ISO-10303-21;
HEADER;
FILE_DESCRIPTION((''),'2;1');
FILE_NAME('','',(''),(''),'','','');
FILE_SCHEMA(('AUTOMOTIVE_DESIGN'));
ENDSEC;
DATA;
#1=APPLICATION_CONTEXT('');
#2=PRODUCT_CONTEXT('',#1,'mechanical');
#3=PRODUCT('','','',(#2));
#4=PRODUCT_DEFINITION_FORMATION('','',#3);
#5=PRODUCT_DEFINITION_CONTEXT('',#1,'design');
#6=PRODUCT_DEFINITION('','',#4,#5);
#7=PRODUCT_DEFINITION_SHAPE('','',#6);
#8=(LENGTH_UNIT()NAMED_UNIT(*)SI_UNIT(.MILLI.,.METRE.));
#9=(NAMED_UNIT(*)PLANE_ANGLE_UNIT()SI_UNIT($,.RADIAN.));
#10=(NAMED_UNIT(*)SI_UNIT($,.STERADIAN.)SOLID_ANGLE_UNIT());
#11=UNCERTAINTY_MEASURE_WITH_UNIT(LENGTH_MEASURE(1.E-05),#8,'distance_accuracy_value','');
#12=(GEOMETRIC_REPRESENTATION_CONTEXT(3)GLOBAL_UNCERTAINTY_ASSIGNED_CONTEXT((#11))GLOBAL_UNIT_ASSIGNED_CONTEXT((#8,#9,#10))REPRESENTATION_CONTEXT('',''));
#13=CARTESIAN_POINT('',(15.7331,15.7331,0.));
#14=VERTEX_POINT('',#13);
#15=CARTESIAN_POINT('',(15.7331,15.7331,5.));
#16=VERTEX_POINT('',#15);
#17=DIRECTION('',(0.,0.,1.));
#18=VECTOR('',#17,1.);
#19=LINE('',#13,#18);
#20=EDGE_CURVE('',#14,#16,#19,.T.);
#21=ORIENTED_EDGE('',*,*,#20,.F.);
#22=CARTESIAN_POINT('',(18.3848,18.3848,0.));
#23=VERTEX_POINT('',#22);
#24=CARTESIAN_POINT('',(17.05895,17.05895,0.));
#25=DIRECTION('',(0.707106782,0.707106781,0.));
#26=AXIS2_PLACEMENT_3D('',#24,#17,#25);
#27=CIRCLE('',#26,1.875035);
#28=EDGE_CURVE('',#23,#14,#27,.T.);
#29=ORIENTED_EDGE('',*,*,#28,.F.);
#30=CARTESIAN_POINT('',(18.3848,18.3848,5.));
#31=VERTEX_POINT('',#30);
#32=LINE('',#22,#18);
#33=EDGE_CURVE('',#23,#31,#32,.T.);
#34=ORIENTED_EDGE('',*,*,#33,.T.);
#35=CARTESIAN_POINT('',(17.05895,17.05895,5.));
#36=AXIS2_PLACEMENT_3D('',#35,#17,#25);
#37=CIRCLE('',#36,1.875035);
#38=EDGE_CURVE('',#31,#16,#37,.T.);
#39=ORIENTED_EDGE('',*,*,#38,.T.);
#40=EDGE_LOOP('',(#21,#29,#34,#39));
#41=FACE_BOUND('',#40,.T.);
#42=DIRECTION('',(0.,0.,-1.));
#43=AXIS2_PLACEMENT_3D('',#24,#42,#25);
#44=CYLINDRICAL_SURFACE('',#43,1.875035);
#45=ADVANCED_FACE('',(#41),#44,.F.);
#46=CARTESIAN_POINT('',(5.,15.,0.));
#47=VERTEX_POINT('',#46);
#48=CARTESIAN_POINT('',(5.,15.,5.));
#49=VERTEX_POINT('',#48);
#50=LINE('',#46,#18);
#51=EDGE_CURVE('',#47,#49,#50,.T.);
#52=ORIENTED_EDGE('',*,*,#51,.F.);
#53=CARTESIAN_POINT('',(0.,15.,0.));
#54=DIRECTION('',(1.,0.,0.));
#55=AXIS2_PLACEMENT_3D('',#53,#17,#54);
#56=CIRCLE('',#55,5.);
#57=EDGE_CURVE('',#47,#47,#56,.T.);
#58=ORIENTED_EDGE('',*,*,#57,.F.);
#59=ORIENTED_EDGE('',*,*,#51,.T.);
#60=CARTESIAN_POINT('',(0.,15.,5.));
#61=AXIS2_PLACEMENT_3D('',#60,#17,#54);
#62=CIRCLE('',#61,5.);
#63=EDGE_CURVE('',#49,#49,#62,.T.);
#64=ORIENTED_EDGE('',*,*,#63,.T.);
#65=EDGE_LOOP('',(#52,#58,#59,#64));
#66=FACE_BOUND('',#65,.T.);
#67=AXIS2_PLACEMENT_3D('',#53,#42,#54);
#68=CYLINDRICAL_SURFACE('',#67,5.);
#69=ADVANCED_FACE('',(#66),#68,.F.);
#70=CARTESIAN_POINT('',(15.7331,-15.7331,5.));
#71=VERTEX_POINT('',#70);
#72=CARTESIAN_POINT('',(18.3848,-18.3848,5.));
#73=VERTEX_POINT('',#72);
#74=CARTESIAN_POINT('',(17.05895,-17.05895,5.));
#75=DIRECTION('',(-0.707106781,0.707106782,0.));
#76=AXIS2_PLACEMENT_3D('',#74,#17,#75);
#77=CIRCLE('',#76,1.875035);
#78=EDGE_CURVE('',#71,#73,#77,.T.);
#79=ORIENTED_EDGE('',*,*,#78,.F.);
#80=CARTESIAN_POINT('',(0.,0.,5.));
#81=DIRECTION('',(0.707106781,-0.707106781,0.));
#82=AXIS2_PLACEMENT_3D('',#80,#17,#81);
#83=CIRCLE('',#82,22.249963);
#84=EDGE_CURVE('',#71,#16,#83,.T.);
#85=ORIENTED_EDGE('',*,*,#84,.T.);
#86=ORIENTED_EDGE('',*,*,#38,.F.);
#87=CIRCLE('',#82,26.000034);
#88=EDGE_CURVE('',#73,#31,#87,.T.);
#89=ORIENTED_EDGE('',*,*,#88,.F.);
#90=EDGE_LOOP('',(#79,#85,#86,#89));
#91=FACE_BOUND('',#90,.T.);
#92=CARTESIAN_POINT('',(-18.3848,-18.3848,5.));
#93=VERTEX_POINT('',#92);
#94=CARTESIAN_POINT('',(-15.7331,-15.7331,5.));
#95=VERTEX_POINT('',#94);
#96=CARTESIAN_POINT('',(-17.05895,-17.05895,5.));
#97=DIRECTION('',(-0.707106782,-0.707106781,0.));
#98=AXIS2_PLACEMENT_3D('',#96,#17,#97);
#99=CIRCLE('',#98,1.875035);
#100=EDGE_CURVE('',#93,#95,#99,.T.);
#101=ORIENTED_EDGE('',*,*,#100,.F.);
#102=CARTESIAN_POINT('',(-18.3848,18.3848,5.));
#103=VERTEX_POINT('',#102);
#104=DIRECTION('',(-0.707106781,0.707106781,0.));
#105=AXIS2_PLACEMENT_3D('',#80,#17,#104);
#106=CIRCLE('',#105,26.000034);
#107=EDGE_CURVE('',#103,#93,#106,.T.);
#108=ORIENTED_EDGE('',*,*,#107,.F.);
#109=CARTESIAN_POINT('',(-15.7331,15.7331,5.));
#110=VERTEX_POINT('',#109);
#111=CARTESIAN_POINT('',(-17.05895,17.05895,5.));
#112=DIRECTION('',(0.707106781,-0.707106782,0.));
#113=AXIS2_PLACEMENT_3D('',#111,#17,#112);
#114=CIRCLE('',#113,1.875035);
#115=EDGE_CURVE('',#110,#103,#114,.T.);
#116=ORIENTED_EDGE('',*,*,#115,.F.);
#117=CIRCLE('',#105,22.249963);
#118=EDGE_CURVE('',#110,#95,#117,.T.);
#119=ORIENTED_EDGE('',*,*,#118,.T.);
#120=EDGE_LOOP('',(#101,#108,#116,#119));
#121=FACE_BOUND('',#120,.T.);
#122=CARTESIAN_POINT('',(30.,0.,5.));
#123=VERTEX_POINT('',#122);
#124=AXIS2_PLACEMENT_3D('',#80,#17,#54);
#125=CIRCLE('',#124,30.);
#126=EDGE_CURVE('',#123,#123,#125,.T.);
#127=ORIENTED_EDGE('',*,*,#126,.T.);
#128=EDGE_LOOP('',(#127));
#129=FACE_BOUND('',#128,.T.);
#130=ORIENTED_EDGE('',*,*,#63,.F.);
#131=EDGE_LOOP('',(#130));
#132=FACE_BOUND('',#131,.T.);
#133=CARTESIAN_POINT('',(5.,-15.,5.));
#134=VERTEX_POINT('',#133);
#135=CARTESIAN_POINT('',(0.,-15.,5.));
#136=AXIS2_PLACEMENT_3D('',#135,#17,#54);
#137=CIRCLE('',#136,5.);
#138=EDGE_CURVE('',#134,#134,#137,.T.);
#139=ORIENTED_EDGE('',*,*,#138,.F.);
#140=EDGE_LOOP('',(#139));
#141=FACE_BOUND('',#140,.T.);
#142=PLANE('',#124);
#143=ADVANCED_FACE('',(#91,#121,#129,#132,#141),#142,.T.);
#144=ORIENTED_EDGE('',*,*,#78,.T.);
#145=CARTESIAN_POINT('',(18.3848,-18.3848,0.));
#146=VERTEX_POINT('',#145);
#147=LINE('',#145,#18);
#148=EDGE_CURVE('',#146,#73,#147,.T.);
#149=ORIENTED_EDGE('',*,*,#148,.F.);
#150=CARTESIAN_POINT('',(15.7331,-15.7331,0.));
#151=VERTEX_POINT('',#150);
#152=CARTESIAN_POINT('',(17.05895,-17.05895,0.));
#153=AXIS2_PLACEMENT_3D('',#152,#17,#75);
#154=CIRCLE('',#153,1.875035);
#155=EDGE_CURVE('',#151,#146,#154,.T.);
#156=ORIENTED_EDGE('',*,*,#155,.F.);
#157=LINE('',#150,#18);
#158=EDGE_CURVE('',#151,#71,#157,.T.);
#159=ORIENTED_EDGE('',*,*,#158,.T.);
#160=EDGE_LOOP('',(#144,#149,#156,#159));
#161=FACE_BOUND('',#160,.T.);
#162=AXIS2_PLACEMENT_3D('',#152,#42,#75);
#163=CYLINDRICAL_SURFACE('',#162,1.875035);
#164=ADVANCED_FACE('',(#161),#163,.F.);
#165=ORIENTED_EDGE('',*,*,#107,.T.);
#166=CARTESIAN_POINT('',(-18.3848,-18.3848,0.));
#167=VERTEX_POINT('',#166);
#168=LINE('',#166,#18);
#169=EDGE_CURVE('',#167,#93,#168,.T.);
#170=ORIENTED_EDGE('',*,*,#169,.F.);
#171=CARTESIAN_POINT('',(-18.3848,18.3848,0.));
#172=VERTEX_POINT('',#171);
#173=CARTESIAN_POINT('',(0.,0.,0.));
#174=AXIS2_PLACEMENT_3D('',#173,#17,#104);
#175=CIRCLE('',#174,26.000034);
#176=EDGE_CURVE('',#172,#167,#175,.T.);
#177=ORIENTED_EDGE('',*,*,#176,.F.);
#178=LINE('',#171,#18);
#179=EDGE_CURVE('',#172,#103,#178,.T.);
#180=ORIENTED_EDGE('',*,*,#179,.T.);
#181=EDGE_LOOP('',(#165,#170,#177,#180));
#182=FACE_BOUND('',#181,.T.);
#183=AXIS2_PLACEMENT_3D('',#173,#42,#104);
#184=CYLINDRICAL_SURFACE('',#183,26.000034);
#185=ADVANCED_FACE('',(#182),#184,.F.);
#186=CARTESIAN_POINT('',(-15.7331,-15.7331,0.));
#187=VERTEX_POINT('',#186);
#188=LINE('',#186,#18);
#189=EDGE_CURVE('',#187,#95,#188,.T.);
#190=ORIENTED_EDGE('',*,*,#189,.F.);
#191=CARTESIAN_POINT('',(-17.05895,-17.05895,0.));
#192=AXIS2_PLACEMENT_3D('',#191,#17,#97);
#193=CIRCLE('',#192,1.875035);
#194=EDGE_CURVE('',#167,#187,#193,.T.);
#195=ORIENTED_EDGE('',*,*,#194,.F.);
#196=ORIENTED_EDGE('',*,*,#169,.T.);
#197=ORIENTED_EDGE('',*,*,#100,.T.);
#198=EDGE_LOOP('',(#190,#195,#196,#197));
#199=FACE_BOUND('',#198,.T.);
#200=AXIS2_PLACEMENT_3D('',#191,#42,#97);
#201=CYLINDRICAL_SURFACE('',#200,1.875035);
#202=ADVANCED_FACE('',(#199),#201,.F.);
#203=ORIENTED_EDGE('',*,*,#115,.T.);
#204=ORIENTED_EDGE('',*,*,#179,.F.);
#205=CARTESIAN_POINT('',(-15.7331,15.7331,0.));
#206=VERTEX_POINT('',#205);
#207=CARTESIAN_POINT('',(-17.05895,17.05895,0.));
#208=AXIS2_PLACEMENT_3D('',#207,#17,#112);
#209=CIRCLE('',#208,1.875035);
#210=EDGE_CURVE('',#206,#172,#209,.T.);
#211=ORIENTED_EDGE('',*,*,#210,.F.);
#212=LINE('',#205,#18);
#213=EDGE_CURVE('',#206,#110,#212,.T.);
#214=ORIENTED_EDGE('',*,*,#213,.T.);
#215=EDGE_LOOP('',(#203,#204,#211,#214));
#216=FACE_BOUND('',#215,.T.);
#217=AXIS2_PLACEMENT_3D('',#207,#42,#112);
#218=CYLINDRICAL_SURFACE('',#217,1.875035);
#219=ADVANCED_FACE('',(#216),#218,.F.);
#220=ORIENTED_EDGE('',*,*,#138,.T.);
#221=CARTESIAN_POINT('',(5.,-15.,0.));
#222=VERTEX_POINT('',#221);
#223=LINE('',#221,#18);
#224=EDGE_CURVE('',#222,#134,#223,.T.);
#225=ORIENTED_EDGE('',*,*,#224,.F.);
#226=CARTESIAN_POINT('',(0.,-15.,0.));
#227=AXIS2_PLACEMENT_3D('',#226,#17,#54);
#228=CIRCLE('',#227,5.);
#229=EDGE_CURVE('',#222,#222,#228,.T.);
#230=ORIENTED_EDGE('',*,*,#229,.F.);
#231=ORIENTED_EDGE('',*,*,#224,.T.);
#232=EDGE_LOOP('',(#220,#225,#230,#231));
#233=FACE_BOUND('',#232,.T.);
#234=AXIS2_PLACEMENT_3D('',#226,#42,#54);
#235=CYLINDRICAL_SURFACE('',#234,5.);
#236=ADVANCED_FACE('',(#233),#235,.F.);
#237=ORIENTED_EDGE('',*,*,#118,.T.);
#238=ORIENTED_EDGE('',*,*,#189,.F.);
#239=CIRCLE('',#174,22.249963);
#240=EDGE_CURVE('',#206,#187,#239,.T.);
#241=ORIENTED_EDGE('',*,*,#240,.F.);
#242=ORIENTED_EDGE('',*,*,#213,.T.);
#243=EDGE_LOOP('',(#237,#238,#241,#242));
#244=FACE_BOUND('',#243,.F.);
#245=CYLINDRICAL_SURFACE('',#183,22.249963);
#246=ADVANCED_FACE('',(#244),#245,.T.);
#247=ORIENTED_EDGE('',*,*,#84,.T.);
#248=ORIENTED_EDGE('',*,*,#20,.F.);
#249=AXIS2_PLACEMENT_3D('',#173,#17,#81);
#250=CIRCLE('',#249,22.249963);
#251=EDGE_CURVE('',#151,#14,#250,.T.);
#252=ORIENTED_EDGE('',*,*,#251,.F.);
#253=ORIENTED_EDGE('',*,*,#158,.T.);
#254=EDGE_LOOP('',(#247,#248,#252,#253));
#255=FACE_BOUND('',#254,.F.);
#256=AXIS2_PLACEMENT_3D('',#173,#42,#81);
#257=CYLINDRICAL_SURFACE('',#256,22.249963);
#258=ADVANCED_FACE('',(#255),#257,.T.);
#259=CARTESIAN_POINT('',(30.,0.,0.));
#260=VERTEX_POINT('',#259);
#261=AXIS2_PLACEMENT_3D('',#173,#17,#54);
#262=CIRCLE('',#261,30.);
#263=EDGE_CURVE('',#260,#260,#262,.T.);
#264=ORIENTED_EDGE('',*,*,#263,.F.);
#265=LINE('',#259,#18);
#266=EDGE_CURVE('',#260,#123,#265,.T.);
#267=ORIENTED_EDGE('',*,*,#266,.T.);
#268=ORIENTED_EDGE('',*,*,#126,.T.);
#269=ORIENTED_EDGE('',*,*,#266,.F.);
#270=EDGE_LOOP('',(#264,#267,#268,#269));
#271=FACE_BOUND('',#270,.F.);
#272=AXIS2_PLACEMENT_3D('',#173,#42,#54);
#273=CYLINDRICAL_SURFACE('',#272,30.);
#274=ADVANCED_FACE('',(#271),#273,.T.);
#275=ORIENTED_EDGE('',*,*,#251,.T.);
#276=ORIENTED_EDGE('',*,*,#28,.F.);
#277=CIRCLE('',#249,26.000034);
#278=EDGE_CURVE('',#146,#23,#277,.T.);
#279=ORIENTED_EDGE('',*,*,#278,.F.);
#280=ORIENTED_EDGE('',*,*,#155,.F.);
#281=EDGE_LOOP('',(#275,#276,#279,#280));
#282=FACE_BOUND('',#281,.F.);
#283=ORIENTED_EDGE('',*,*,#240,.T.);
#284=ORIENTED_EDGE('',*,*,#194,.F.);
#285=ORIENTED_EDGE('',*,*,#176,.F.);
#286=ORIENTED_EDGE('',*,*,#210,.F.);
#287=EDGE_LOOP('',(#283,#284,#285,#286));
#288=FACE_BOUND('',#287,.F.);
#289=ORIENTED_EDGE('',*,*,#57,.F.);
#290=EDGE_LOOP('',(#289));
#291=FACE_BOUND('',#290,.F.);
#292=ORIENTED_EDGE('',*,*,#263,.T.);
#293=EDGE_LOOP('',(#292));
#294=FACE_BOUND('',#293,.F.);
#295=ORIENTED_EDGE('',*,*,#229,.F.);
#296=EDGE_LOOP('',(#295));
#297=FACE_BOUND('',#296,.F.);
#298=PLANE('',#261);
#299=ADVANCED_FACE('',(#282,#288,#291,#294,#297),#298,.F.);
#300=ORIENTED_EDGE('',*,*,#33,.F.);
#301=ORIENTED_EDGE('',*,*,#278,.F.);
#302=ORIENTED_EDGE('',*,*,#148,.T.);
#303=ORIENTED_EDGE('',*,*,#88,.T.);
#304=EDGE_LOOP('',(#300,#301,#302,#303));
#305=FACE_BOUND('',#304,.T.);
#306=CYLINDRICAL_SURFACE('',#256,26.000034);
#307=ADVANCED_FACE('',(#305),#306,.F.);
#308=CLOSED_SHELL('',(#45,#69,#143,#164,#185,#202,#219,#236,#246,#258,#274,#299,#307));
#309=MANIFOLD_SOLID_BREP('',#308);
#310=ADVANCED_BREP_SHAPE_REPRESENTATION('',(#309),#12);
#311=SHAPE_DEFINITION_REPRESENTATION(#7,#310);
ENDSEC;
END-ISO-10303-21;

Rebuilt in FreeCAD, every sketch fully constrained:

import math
import FreeCAD as App
import Part
import Sketcher

doc = App.newDocument("Part")
params = doc.addObject("Spreadsheet::Sheet", "Params")
for row, (alias, value) in enumerate([
    ("sketch1_diameter", "60 mm"),
    ("sketch1_diameter2", "10 mm"),
    ("sketch1_radius", "26 mm"),
    ("sketch1_radius2", "22.25 mm"),
    ("pad1_length", "5 mm"),
], start=1):
    params.set(f"A{row}", alias)
    params.set(f"B{row}", "=" + value)
    params.setAlias(f"B{row}", alias)

body = doc.addObject("PartDesign::Body", "Body")

sketch1 = body.newObject("Sketcher::SketchObject", "Sketch")
sketch1.AttachmentSupport = (doc.getObject("XY_Plane"), [""])
sketch1.MapMode = "FlatFace"
sketch1.addGeometry([
    Part.Circle(App.Vector(0, 0, 0), App.Vector(0, 0, 1), 30),
    Part.Circle(App.Vector(0, -15, 0), App.Vector(0, 0, 1), 5),
    Part.ArcOfCircle(Part.Circle(App.Vector(17.1, 17.1, 0), App.Vector(0, 0, 1), 1.9), math.radians(45), math.radians(225)),
    Part.ArcOfCircle(Part.Circle(App.Vector(0, 0, 0), App.Vector(0, 0, 1), 26), math.radians(-45), math.radians(45)),
    Part.ArcOfCircle(Part.Circle(App.Vector(17.1, -17.1, 0), App.Vector(0, 0, 1), 1.9), math.radians(135), math.radians(315)),
    Part.ArcOfCircle(Part.Circle(App.Vector(0, 0, 0), App.Vector(0, 0, 1), 22.2), math.radians(-45), math.radians(45)),
    Part.ArcOfCircle(Part.Circle(App.Vector(-17.1, 17.1, 0), App.Vector(0, 0, 1), 1.9), math.radians(-45), math.radians(135)),
    Part.ArcOfCircle(Part.Circle(App.Vector(0, 0, 0), App.Vector(0, 0, 1), 22.2), math.radians(135), math.radians(225)),
    Part.ArcOfCircle(Part.Circle(App.Vector(-17.1, -17.1, 0), App.Vector(0, 0, 1), 1.9), math.radians(-135), math.radians(45)),
    Part.ArcOfCircle(Part.Circle(App.Vector(0, 0, 0), App.Vector(0, 0, 1), 26), math.radians(135), math.radians(225)),
    Part.Circle(App.Vector(0, 15, 0), App.Vector(0, 0, 1), 5),
], False)
sketch1.addConstraint([
    Sketcher.Constraint("Tangent", 2, 1, 3, 2),
    Sketcher.Constraint("Tangent", 3, 1, 4, 2),
    Sketcher.Constraint("Tangent", 4, 1, 5, 1),
    Sketcher.Constraint("Tangent", 5, 2, 2, 2),
    Sketcher.Constraint("Tangent", 6, 1, 7, 1),
    Sketcher.Constraint("Tangent", 7, 2, 8, 2),
    Sketcher.Constraint("Tangent", 8, 1, 9, 2),
    Sketcher.Constraint("Tangent", 9, 1, 6, 2),
    Sketcher.Constraint("Coincident", 0, 3, -1, 1),
    Sketcher.Constraint("Coincident", 3, 3, -1, 1),
    Sketcher.Constraint("Coincident", 5, 3, -1, 1),
    Sketcher.Constraint("Coincident", 7, 3, -1, 1),
    Sketcher.Constraint("Coincident", 9, 3, -1, 1),
    Sketcher.Constraint("Equal", 4, 6),
    Sketcher.Constraint("Equal", 5, 7),
    Sketcher.Constraint("Equal", 1, 10),
    Sketcher.Constraint("Symmetric", 1, 3, 10, 3, -1, 1),
    Sketcher.Constraint("PointOnObject", 1, 3, -2),
    Sketcher.Constraint("Horizontal", 2, 3, 6, 3),
    Sketcher.Constraint("Horizontal", 4, 3, 8, 3),
    Sketcher.Constraint("Vertical", 2, 3, 4, 3),
    Sketcher.Constraint("Diameter", 0, 60.0),
    Sketcher.Constraint("Diameter", 1, 10.0),
    Sketcher.Constraint("Radius", 3, 26.0),
    Sketcher.Constraint("Radius", 5, 22.25),
    Sketcher.Constraint("DistanceY", 1, 3, -1, 1, 15.0),
    Sketcher.Constraint("DistanceX", -1, 1, 2, 3, 17.059),
])
sketch1.setExpression("Constraints[21]", "Params.sketch1_diameter")
sketch1.setExpression("Constraints[22]", "Params.sketch1_diameter2")
sketch1.setExpression("Constraints[23]", "Params.sketch1_radius")
sketch1.setExpression("Constraints[24]", "Params.sketch1_radius2")
pad1 = body.newObject("PartDesign::Pad", "Pad")
pad1.Profile = sketch1
pad1.setExpression("Length", "Params.pad1_length")

doc.recompute()
